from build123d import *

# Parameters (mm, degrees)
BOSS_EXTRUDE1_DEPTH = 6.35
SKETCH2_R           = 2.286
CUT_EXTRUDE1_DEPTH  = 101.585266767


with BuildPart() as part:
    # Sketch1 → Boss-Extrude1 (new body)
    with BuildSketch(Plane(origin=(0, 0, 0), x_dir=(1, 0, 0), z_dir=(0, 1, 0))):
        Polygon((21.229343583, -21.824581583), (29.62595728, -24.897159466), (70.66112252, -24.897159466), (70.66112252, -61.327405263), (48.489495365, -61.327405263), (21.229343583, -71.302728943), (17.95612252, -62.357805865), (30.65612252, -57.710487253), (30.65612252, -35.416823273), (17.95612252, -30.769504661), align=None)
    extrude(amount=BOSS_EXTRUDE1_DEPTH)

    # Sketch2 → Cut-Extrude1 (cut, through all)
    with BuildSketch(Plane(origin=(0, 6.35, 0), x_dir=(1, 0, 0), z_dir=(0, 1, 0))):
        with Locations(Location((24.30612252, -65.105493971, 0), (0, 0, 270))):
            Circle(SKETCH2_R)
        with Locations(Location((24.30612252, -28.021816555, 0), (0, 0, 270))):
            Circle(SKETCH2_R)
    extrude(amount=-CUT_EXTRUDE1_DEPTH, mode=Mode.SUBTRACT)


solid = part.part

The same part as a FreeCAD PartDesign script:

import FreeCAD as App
import Part
import Sketcher
Q = App.Units.Quantity


def add_polygon(sketch, points):
    """Adds a closed chain of lines whose ends are joined by coincident constraints."""
    first, n = sketch.GeometryCount, len(points)
    for a, b in zip(points, points[1:] + points[:1]):
        sketch.addGeometry(Part.LineSegment(App.Vector(*a, 0), App.Vector(*b, 0)), False)
    for i in range(n):
        sketch.addConstraint(Sketcher.Constraint("Coincident", first + i, 2, first + (i + 1) % n, 1))

doc = App.newDocument("Part")
body = doc.addObject("PartDesign::Body", "Body")

# Sketch on XZ plane
sketch1 = body.newObject("Sketcher::SketchObject", "Sketch")
sketch1.AttachmentSupport = (doc.getObject("XZ_Plane"), [""])
sketch1.MapMode = "FlatFace"
add_polygon(sketch1, [(29.625957, 24.897159), (21.229344, 21.824582), (17.956123, 30.769505), (30.656123, 35.416823), (30.656123, 57.710487), (17.956123, 62.357806), (21.229344, 71.302729), (48.489495, 61.327405), (70.661123, 61.327405), (70.661123, 24.897159)])  # lines 0-9
sketch1.addConstraint(Sketcher.Constraint("Vertical", 3))
sketch1.addConstraint(Sketcher.Constraint("Horizontal", 7))
sketch1.addConstraint(Sketcher.Constraint("Vertical", 8))
sketch1.addConstraint(Sketcher.Constraint("Horizontal", 9))
sketch1.addConstraint(Sketcher.Constraint("Perpendicular", 0, 1))
sketch1.addConstraint(Sketcher.Constraint("Perpendicular", 1, 2))
sketch1.addConstraint(Sketcher.Constraint("Perpendicular", 4, 5))
sketch1.addConstraint(Sketcher.Constraint("Perpendicular", 5, 6))
sketch1.addConstraint(Sketcher.Constraint("Vertical", 1, 2, 4, 2))
sketch1.addConstraint(Sketcher.Constraint("Vertical", 0, 2, 5, 2))
sketch1.addConstraint(Sketcher.Constraint("Equal", 2, 4))
sketch1.addConstraint(Sketcher.Constraint("DistanceX", 1, 2, 2, 2, Q("0.5 in")))
sketch1.addConstraint(Sketcher.Constraint("Distance", 1, Q("0.375 in")))
sketch1.addConstraint(Sketcher.Constraint("DistanceX", 3, 2, 7, 2, Q("1.575 in")))
sketch1.addConstraint(Sketcher.Constraint("DistanceY", 1, 2, 4, 2, 31.588301))
sketch1.addConstraint(Sketcher.Constraint("DistanceY", 6, 2, 4, 2, 1.030401))
sketch1.addConstraint(Sketcher.Constraint("Distance", 6, 29.027969))
sketch1.addConstraint(Sketcher.Constraint("DistanceX", 9, 2, 9, 1, 41.035165))
sketch1.addConstraint(Sketcher.Constraint("DistanceY", -1, 1, 0, 2, 21.824582))
sketch1.addConstraint(Sketcher.Constraint("DistanceX", -1, 1, 0, 2, 21.229344))
pad1 = body.newObject("PartDesign::Pad", "Pad")
pad1.Profile = sketch1
pad1.Length = Q("0.25 in")
pad1.Reversed = True

# Sketch on XZ plane
sketch2 = body.newObject("Sketcher::SketchObject", "Sketch001")
sketch2.AttachmentSupport = (doc.getObject("XZ_Plane"), [""])
sketch2.MapMode = "FlatFace"
sketch2.AttachmentOffset = App.Placement(App.Vector(0, 0, -0.25 * 25.4), App.Rotation())
sketch2.addGeometry(Part.Circle(App.Vector(24.306123, 65.105494, 0), App.Vector(0, 0, 1), 2.286), False)
sketch2.addGeometry(Part.Circle(App.Vector(24.306123, 28.021817, 0), App.Vector(0, 0, 1), 2.286), False)
sketch2.addConstraint(Sketcher.Constraint("Equal", 0, 1))
sketch2.addConstraint(Sketcher.Constraint("Vertical", 0, 3, 1, 3))
sketch2.addConstraint(Sketcher.Constraint("Diameter", 0, Q("0.18 in")))
sketch2.addConstraint(Sketcher.Constraint("DistanceX", -1, 1, 0, 3, 24.306123))
sketch2.addConstraint(Sketcher.Constraint("DistanceY", -1, 1, 0, 3, 65.105494))
sketch2.addConstraint(Sketcher.Constraint("DistanceY", -1, 1, 1, 3, 28.021817))
pocket1 = body.newObject("PartDesign::Pocket", "Pocket")
pocket1.Profile = sketch2
pocket1.Type = "ThroughAll"
pocket1.Reversed = True

doc.recompute()
